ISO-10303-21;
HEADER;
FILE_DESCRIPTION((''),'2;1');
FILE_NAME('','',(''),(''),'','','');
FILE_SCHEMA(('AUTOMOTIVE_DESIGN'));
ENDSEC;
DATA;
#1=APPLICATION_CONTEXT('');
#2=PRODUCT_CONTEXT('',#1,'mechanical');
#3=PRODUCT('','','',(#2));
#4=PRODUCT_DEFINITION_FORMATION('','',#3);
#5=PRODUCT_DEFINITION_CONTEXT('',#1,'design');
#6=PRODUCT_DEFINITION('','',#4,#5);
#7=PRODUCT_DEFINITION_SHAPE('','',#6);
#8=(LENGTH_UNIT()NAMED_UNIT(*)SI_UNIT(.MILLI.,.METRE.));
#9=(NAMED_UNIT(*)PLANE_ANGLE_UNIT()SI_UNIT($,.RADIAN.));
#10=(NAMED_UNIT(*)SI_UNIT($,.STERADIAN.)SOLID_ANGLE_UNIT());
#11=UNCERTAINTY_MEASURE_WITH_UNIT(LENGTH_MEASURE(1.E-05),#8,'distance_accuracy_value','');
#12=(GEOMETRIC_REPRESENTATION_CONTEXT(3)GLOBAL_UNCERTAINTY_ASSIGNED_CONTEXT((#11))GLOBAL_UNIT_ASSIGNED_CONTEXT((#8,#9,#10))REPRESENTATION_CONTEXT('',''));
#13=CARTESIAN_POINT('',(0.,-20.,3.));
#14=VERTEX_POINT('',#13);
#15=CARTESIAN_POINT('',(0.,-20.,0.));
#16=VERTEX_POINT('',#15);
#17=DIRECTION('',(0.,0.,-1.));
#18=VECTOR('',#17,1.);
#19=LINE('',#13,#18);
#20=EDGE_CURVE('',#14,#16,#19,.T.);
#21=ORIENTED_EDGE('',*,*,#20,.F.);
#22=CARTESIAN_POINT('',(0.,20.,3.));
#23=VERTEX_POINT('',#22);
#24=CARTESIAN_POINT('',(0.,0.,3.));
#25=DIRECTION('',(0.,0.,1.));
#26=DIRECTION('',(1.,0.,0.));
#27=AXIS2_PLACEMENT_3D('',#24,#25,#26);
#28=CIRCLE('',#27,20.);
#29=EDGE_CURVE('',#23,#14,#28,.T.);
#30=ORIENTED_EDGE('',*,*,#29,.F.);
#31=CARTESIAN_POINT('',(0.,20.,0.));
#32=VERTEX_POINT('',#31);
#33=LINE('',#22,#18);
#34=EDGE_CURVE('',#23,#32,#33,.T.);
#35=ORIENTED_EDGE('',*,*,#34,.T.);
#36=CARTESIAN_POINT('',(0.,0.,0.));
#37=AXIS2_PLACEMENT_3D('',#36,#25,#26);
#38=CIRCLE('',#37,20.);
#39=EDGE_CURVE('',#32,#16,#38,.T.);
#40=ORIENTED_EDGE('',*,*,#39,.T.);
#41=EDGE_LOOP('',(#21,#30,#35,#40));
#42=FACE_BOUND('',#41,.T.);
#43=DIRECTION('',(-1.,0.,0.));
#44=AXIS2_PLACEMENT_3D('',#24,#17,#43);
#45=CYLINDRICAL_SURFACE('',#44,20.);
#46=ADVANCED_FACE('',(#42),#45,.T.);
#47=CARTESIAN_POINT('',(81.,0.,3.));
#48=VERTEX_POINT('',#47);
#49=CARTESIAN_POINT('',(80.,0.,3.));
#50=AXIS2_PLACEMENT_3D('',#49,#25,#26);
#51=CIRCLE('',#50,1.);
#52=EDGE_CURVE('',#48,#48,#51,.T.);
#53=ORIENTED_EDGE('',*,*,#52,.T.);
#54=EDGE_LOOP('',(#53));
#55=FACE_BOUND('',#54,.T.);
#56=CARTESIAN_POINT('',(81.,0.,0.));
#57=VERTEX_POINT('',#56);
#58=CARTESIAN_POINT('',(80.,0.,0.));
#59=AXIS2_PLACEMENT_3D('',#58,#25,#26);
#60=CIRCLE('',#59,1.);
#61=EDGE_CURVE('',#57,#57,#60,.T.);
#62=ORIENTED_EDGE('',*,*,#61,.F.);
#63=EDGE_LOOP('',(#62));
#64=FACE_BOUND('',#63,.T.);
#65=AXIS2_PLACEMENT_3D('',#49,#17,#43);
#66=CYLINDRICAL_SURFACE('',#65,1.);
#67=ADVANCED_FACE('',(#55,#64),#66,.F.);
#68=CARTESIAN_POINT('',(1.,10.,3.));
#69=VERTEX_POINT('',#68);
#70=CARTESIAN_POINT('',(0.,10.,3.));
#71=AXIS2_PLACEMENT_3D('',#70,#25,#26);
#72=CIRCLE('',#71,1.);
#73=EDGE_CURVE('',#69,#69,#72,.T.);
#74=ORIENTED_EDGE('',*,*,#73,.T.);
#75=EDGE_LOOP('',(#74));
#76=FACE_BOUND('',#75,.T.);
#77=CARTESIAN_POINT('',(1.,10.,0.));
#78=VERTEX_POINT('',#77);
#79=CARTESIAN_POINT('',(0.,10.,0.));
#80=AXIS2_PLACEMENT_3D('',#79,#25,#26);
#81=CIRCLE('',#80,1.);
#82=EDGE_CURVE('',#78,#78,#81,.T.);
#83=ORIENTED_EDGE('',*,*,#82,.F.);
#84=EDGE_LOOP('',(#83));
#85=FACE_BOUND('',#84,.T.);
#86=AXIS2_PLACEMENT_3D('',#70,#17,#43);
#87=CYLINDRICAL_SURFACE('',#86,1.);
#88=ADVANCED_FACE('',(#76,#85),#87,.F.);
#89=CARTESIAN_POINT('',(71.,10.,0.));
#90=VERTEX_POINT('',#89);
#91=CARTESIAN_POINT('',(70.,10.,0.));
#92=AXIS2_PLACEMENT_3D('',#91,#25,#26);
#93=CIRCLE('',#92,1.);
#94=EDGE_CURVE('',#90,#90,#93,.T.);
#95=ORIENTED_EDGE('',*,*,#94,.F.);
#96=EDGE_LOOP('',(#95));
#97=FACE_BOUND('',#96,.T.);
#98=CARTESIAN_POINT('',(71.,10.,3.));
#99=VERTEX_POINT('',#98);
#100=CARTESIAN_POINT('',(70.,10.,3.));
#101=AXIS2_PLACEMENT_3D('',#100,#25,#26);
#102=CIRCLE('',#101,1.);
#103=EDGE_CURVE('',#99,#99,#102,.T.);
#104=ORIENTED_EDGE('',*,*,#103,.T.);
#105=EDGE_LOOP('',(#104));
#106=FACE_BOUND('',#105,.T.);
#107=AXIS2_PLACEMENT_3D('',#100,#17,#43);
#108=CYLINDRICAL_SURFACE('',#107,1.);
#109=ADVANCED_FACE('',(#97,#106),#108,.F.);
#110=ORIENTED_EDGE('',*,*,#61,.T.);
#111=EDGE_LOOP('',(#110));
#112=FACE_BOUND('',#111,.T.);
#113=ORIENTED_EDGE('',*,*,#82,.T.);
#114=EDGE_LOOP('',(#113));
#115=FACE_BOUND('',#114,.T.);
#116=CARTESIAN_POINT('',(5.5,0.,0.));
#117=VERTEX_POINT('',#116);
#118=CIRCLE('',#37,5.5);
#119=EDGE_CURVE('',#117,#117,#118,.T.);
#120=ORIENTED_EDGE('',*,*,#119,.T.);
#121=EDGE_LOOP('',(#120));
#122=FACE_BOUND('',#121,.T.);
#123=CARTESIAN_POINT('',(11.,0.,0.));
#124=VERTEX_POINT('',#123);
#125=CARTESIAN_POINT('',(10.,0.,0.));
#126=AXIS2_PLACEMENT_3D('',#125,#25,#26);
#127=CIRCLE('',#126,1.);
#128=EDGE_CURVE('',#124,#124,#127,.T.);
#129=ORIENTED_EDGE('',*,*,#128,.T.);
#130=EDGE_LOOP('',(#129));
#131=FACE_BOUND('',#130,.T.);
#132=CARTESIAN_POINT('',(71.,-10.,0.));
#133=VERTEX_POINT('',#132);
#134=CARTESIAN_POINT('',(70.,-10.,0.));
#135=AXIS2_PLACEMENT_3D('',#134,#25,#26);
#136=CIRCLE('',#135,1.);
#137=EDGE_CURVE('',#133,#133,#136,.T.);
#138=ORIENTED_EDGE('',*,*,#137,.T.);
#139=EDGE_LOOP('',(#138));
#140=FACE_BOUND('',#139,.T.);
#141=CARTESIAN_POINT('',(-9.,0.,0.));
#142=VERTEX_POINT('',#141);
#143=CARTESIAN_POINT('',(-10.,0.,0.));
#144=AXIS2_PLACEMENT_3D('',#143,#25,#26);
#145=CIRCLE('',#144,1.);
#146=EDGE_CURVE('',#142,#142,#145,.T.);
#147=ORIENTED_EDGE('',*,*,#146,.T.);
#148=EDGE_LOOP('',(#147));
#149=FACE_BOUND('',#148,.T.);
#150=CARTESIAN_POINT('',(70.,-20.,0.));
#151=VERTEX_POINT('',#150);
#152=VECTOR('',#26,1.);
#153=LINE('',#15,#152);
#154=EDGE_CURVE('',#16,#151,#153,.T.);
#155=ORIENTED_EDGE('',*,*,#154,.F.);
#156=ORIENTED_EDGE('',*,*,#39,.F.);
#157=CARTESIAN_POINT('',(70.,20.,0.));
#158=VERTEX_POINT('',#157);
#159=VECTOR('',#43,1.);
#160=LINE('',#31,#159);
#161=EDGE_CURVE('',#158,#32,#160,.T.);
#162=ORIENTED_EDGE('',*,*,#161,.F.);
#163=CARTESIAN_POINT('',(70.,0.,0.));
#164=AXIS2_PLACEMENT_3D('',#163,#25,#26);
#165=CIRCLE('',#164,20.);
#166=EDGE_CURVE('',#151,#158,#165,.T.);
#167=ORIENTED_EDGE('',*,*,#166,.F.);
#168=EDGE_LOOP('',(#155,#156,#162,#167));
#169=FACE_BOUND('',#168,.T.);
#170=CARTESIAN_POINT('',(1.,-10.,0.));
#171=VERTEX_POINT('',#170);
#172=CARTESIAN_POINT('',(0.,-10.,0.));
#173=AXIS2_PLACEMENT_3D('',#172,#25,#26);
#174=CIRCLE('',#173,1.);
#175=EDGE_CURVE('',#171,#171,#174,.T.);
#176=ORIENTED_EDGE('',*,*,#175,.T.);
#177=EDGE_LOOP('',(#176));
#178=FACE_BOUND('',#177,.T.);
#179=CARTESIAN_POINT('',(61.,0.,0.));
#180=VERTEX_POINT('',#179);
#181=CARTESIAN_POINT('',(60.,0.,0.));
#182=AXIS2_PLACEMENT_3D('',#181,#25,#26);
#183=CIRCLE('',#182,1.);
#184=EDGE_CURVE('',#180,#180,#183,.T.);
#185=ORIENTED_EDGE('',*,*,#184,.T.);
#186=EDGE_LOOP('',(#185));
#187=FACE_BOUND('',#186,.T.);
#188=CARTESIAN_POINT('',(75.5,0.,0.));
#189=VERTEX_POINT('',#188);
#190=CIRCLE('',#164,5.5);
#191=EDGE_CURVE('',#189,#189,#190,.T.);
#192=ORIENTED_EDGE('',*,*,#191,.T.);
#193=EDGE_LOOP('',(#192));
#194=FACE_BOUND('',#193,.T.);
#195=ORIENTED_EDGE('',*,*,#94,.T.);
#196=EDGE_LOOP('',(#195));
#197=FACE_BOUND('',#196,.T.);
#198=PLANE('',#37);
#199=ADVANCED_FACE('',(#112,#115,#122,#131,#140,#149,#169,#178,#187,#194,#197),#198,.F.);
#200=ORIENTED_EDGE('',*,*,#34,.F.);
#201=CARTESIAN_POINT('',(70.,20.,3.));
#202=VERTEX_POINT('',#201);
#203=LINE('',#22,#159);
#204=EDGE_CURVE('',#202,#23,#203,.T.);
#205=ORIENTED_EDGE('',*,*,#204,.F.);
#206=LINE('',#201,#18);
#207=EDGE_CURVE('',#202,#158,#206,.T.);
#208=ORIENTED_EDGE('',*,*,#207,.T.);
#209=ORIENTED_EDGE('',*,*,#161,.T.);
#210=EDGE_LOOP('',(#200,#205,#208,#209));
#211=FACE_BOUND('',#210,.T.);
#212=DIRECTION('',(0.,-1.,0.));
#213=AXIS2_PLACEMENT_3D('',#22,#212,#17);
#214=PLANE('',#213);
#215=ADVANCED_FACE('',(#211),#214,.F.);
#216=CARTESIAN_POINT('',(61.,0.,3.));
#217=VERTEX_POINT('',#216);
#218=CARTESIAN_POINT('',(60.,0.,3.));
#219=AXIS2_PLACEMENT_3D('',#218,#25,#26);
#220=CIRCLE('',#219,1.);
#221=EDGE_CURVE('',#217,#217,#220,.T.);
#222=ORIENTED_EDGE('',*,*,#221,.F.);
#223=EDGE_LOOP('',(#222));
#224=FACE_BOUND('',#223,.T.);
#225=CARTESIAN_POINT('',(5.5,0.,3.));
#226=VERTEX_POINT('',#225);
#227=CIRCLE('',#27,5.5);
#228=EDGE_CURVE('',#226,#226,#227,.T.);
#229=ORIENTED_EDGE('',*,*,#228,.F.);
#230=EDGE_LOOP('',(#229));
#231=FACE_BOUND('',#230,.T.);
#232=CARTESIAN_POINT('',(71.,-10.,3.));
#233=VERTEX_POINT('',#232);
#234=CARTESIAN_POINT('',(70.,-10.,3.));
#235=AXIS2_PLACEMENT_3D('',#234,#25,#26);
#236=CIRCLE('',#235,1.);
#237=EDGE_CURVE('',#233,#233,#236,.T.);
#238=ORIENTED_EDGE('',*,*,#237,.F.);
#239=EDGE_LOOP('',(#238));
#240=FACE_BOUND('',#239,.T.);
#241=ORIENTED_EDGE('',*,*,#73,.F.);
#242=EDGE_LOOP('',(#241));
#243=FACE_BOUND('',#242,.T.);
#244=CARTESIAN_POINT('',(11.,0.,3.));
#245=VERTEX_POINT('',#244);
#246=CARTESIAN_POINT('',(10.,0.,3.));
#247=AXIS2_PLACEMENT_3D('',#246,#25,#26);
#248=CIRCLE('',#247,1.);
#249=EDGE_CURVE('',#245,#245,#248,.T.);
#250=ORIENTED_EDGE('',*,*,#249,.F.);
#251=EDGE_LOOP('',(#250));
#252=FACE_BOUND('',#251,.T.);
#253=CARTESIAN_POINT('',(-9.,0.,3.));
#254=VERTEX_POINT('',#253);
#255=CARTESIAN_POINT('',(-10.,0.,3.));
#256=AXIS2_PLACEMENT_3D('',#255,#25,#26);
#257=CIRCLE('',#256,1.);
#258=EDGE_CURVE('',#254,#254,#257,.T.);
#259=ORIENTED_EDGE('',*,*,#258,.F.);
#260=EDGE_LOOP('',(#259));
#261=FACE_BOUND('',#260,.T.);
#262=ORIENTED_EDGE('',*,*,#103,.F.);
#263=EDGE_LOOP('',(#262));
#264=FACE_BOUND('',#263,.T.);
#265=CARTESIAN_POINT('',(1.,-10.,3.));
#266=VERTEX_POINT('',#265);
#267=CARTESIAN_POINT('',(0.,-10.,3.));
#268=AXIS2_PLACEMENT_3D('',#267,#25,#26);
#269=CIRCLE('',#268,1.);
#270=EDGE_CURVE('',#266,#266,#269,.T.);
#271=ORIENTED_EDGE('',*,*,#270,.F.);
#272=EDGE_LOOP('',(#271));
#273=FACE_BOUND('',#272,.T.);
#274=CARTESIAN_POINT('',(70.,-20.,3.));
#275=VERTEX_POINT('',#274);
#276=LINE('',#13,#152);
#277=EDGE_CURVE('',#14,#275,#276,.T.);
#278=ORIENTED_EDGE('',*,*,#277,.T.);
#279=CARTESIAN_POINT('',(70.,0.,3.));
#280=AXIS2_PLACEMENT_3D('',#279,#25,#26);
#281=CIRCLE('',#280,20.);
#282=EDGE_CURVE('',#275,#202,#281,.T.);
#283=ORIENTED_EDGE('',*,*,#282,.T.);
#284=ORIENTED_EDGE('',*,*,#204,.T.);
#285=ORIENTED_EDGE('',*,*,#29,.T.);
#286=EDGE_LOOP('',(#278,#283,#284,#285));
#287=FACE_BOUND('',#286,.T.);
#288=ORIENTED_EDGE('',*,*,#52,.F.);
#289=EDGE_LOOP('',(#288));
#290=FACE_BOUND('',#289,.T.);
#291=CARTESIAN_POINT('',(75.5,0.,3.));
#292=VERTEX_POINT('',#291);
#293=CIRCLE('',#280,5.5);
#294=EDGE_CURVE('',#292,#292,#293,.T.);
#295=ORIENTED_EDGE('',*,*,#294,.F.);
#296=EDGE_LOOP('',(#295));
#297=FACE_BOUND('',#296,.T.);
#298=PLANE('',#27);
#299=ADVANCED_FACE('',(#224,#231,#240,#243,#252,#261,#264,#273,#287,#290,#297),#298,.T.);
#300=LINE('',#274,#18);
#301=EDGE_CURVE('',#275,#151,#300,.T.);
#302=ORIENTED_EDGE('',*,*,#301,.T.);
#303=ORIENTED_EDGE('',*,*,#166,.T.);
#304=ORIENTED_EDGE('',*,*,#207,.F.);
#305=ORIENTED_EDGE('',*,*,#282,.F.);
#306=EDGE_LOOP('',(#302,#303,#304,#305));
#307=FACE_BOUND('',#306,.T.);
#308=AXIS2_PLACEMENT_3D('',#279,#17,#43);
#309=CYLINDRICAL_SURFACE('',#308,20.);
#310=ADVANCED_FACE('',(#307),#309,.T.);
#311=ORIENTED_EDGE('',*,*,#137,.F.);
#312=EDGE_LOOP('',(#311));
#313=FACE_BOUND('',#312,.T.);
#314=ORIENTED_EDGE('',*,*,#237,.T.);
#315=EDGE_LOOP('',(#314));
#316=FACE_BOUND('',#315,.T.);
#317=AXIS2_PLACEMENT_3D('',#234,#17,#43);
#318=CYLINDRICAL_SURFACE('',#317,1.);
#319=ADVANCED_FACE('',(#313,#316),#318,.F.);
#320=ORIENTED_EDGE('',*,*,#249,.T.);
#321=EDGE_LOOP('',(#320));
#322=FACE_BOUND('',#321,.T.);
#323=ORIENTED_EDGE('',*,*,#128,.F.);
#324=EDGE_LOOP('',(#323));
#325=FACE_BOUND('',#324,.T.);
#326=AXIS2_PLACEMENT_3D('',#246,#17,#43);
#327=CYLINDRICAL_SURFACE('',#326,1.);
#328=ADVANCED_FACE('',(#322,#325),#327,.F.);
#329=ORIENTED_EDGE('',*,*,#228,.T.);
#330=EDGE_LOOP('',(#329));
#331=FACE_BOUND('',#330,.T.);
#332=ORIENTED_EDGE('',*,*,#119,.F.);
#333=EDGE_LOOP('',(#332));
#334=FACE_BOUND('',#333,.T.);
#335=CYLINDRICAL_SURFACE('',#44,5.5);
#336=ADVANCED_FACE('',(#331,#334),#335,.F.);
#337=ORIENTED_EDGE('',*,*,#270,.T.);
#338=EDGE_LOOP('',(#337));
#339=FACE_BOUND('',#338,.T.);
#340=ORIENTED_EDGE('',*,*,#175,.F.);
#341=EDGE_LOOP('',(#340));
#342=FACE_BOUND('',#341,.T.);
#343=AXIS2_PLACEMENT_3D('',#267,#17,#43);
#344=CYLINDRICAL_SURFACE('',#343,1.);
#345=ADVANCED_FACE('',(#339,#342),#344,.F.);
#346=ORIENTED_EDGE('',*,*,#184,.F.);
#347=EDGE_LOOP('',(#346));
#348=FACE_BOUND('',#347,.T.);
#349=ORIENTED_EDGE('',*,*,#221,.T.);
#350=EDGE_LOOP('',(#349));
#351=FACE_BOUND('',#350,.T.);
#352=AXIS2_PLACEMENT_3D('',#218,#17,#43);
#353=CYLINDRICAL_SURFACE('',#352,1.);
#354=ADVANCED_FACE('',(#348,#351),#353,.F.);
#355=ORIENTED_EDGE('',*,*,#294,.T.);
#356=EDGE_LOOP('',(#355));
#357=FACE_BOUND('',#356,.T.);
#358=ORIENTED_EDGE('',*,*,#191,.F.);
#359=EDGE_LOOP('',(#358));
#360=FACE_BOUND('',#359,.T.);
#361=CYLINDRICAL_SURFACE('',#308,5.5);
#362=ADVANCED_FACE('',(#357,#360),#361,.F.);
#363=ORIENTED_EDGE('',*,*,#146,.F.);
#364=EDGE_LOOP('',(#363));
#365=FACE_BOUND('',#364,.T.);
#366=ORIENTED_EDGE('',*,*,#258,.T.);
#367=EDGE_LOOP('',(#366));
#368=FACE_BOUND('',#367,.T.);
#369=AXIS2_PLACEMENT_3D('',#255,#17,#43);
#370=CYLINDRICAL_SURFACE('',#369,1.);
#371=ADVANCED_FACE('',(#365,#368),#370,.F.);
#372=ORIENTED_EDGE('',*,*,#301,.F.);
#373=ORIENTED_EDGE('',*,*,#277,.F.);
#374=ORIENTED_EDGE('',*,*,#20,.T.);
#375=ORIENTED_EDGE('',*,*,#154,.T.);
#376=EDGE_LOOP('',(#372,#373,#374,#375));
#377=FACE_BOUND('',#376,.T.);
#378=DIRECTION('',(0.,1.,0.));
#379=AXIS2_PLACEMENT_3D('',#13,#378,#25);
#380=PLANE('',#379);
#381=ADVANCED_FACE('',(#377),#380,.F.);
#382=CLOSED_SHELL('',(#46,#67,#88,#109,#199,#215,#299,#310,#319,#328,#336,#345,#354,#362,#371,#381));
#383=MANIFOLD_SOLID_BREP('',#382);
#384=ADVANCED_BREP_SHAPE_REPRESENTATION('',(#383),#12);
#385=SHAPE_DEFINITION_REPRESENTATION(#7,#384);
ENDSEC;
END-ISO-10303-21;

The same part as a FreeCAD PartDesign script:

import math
import FreeCAD as App
import Part
import Sketcher
from FreeCAD import Vector

doc = App.newDocument("Part")
body = doc.addObject("PartDesign::Body", "Body")

sketch1 = body.newObject("Sketcher::SketchObject", "Sketch")
sketch1.AttachmentSupport = (doc.getObject("XY_Plane"), [""])
sketch1.MapMode = "FlatFace"
sketch1.addGeometry(Part.LineSegment(Vector(70, 20, 0), Vector(0, 20, 0)), False)
sketch1.addGeometry(Part.ArcOfCircle(Part.Circle(Vector(0, 0, 0), Vector(0, 0, 1), 20), math.radians(90), math.radians(270)), False)
sketch1.addGeometry(Part.LineSegment(Vector(0, -20, 0), Vector(70, -20, 0)), False)
sketch1.addGeometry(Part.ArcOfCircle(Part.Circle(Vector(70, 0, 0), Vector(0, 0, 1), 20), math.radians(-90), math.radians(90)), False)
sketch1.addGeometry(Part.Circle(Vector(70, -10, 0), Vector(0, 0, 1), 1), False)
sketch1.addGeometry(Part.Circle(Vector(0, -10, 0), Vector(0, 0, 1), 1), False)
sketch1.addGeometry(Part.Circle(Vector(80, 0, 0), Vector(0, 0, 1), 1), False)
sketch1.addGeometry(Part.Circle(Vector(70, 0, 0), Vector(0, 0, 1), 5.5), False)
sketch1.addGeometry(Part.Circle(Vector(60, 0, 0), Vector(0, 0, 1), 1), False)
sketch1.addGeometry(Part.Circle(Vector(70, 10, 0), Vector(0, 0, 1), 1), False)
sketch1.addGeometry(Part.Circle(Vector(10, 0, 0), Vector(0, 0, 1), 1), False)
sketch1.addGeometry(Part.Circle(Vector(0, 0, 0), Vector(0, 0, 1), 5.5), False)
sketch1.addGeometry(Part.Circle(Vector(-10, 0, 0), Vector(0, 0, 1), 1), False)
sketch1.addGeometry(Part.Circle(Vector(0, 10, 0), Vector(0, 0, 1), 1), False)
sketch1.addConstraint(Sketcher.Constraint("Tangent", 0, 2, 1, 1))
sketch1.addConstraint(Sketcher.Constraint("Tangent", 1, 2, 2, 1))
sketch1.addConstraint(Sketcher.Constraint("Tangent", 2, 2, 3, 1))
sketch1.addConstraint(Sketcher.Constraint("Tangent", 3, 2, 0, 1))
sketch1.addConstraint(Sketcher.Constraint("Horizontal", 0))
sketch1.addConstraint(Sketcher.Constraint("Horizontal", 2))
sketch1.addConstraint(Sketcher.Constraint("Coincident", 1, 3, -1, 1))
sketch1.addConstraint(Sketcher.Constraint("Coincident", 11, 3, -1, 1))
sketch1.addConstraint(Sketcher.Constraint("Coincident", 7, 3, 3, 3))
sketch1.addConstraint(Sketcher.Constraint("Equal", 4, 5))
sketch1.addConstraint(Sketcher.Constraint("Equal", 5, 6))
sketch1.addConstraint(Sketcher.Constraint("Equal", 6, 8))
sketch1.addConstraint(Sketcher.Constraint("Equal", 8, 9))
sketch1.addConstraint(Sketcher.Constraint("Equal", 9, 10))
sketch1.addConstraint(Sketcher.Constraint("Equal", 7, 11))
sketch1.addConstraint(Sketcher.Constraint("Equal", 10, 12))
sketch1.addConstraint(Sketcher.Constraint("Equal", 12, 13))
sketch1.addConstraint(Sketcher.Constraint("Symmetric", 10, 3, 12, 3, -1, 1))
sketch1.addConstraint(Sketcher.Constraint("Symmetric", 5, 3, 13, 3, -1, 1))
sketch1.addConstraint(Sketcher.Constraint("Symmetric", 4, 3, 9, 3, -1))
sketch1.addConstraint(Sketcher.Constraint("PointOnObject", 5, 3, -2))
sketch1.addConstraint(Sketcher.Constraint("PointOnObject", 6, 3, -1))
sketch1.addConstraint(Sketcher.Constraint("PointOnObject", 8, 3, -1))
sketch1.addConstraint(Sketcher.Constraint("PointOnObject", 10, 3, -1))
sketch1.addConstraint(Sketcher.Constraint("Horizontal", 4, 3, 5, 3))
sketch1.addConstraint(Sketcher.Constraint("Vertical", 3, 3, 4, 3))
sketch1.addConstraint(Sketcher.Constraint("Diameter", 4, 2.0))
sketch1.addConstraint(Sketcher.Constraint("Diameter", 7, 11.0))
sketch1.addConstraint(Sketcher.Constraint("Radius", 1, 20.0))
sketch1.addConstraint(Sketcher.Constraint("DistanceX", 0, 2, 0, 1, 70.0))
sketch1.addConstraint(Sketcher.Constraint("DistanceY", 4, 3, -1, 1, 10.0))
sketch1.addConstraint(Sketcher.Constraint("DistanceX", -1, 1, 6, 3, 80.0))
sketch1.addConstraint(Sketcher.Constraint("DistanceX", -1, 1, 8, 3, 60.0))
sketch1.addConstraint(Sketcher.Constraint("DistanceX", -1, 1, 10, 3, 10.0))
pad1 = body.newObject("PartDesign::Pad", "Pad")
pad1.Profile = sketch1
pad1.Length = 3

doc.recompute()
